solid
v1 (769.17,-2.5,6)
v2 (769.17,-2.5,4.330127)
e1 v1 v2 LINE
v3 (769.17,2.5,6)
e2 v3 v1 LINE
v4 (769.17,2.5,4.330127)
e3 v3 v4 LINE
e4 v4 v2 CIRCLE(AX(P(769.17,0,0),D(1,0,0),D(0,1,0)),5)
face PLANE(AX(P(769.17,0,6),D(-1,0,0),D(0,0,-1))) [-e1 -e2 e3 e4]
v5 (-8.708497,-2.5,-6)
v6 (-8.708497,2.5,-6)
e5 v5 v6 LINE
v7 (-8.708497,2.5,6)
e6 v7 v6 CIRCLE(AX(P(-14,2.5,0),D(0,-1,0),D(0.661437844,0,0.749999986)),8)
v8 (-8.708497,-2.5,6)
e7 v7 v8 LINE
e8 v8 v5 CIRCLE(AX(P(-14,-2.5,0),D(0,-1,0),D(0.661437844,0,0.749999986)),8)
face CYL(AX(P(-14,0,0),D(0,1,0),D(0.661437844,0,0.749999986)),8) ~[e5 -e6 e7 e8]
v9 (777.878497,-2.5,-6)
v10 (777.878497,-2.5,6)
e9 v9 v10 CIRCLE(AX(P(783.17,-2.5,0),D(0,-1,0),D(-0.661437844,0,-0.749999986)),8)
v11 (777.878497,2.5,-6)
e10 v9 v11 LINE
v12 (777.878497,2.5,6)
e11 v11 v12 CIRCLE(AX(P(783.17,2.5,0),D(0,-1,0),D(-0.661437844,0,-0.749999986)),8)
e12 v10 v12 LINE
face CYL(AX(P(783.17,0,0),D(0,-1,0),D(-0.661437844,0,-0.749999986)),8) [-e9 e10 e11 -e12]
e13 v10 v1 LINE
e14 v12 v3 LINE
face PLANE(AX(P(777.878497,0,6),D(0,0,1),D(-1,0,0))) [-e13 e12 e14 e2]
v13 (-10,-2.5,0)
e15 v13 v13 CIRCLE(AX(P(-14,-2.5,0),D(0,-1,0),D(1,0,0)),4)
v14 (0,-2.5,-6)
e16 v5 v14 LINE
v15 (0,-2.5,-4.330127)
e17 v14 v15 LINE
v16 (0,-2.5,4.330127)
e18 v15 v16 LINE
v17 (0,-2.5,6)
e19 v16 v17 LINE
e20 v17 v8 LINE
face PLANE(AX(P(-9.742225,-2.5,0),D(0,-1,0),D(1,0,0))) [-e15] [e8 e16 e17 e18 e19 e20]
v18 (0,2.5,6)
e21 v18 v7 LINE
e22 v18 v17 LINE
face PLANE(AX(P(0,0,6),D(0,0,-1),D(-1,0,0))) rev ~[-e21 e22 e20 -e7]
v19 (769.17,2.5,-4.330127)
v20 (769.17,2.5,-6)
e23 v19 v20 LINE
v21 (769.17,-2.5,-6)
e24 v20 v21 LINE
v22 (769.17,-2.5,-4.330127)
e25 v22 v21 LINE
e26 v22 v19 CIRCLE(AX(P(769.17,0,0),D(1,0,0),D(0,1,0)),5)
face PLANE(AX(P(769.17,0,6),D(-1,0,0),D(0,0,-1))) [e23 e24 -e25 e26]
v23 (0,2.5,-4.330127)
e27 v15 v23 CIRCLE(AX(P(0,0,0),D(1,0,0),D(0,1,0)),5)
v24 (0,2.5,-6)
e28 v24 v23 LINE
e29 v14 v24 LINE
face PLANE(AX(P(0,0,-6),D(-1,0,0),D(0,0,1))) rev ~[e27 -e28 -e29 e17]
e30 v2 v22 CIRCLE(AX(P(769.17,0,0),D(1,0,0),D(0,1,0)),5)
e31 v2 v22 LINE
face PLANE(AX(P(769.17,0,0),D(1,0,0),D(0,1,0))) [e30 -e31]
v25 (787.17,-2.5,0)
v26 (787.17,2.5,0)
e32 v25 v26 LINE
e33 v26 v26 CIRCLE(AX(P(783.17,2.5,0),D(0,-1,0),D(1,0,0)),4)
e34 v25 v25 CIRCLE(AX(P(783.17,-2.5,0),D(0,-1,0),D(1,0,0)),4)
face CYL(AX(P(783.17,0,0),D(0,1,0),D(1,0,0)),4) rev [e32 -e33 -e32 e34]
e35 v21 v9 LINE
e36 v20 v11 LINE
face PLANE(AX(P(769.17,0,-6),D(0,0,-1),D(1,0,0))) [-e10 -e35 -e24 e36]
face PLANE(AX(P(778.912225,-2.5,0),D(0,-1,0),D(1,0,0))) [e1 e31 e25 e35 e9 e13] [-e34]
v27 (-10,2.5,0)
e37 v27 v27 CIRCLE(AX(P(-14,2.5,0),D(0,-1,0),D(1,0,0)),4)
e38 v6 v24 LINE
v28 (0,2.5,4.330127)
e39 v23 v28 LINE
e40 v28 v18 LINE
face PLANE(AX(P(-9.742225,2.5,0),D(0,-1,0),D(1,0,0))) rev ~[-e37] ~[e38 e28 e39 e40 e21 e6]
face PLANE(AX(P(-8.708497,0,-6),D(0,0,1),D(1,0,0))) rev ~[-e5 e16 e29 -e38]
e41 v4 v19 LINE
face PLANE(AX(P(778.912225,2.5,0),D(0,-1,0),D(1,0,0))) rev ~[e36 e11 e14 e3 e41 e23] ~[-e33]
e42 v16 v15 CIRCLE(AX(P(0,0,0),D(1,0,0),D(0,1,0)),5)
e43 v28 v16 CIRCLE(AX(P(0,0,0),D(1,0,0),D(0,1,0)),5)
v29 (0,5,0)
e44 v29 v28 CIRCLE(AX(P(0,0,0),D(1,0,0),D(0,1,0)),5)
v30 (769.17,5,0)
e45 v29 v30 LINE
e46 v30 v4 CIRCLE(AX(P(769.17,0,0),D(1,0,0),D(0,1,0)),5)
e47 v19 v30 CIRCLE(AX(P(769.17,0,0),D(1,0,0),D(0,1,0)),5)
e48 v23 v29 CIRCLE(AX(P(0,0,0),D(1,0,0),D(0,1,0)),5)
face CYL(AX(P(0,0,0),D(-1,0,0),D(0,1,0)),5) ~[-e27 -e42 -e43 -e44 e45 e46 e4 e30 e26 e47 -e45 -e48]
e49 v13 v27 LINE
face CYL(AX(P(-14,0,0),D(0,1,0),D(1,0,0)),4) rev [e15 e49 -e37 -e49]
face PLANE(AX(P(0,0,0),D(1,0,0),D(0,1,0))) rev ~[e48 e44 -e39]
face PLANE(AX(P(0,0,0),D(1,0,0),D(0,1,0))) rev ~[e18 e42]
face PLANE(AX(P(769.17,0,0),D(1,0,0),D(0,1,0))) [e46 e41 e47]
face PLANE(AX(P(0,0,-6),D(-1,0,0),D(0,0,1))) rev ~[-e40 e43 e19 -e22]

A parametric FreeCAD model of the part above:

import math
import FreeCAD as App
import Part
import Sketcher

V = App.Vector

doc = App.newDocument("Part")
body = doc.addObject("PartDesign::Body", "Body")

sketch1 = doc.addObject("Sketcher::SketchObject", "Sketch")
body.addObject(sketch1)
sketch1.AttachmentSupport = (doc.YZ_Plane, [""])
sketch1.MapMode = "FlatFace"
sketch1.addGeometry(Part.Circle(V(0, 0, 0), V(0, 0, 1), 5), False)
sketch1.addConstraint(Sketcher.Constraint("Coincident", 0, 3, -1, 1))
sketch1.addConstraint(Sketcher.Constraint("Diameter", 0, 10.0))
pad1 = doc.addObject("PartDesign::Pad", "Pad")
body.addObject(pad1)
pad1.Profile = sketch1
pad1.Length = 769.17

sketch2 = doc.addObject("Sketcher::SketchObject", "Sketch001")
body.addObject(sketch2)
sketch2.AttachmentSupport = (doc.XZ_Plane, [""])
sketch2.MapMode = "FlatFace"
sketch2.addGeometry(Part.LineSegment(V(0, -6, 0), V(0, 6, 0)), False)
sketch2.addGeometry(Part.LineSegment(V(0, 6, 0), V(-8.7, 6, 0)), False)
sketch2.addGeometry(Part.ArcOfCircle(Part.Circle(V(-14, 0, 0), V(0, 0, 1), 8), math.radians(49), math.radians(311)), False)
sketch2.addGeometry(Part.LineSegment(V(-8.7, -6, 0), V(0, -6, 0)), False)
sketch2.addGeometry(Part.Circle(V(-14, 0, 0), V(0, 0, 1), 4), False)
sketch2.addGeometry(Part.LineSegment(V(777.9, 6, 0), V(769.2, 6, 0)), False)
sketch2.addGeometry(Part.LineSegment(V(769.2, 6, 0), V(769.2, -6, 0)), False)
sketch2.addGeometry(Part.LineSegment(V(769.2, -6, 0), V(777.9, -6, 0)), False)
sketch2.addGeometry(Part.ArcOfCircle(Part.Circle(V(783.2, 0, 0), V(0, 0, 1), 8), math.radians(-131), math.radians(131)), False)
sketch2.addGeometry(Part.Circle(V(783.2, 0, 0), V(0, 0, 1), 4), False)
sketch2.addConstraint(Sketcher.Constraint("Coincident", 0, 2, 1, 1))
sketch2.addConstraint(Sketcher.Constraint("Coincident", 1, 2, 2, 1))
sketch2.addConstraint(Sketcher.Constraint("Coincident", 2, 2, 3, 1))
sketch2.addConstraint(Sketcher.Constraint("Coincident", 3, 2, 0, 1))
sketch2.addConstraint(Sketcher.Constraint("Coincident", 5, 2, 6, 1))
sketch2.addConstraint(Sketcher.Constraint("Coincident", 6, 2, 7, 1))
sketch2.addConstraint(Sketcher.Constraint("Coincident", 7, 2, 8, 1))
sketch2.addConstraint(Sketcher.Constraint("Coincident", 8, 2, 5, 1))
sketch2.addConstraint(Sketcher.Constraint("Vertical", 0))
sketch2.addConstraint(Sketcher.Constraint("Horizontal", 1))
sketch2.addConstraint(Sketcher.Constraint("Horizontal", 3))
sketch2.addConstraint(Sketcher.Constraint("Horizontal", 5))
sketch2.addConstraint(Sketcher.Constraint("Vertical", 6))
sketch2.addConstraint(Sketcher.Constraint("Horizontal", 7))
sketch2.addConstraint(Sketcher.Constraint("Coincident", 4, 3, 2, 3))
sketch2.addConstraint(Sketcher.Constraint("Coincident", 9, 3, 8, 3))
sketch2.addConstraint(Sketcher.Constraint("Equal", 2, 8))
sketch2.addConstraint(Sketcher.Constraint("Equal", 4, 9))
sketch2.addConstraint(Sketcher.Constraint("Symmetric", 0, 2, 3, 2, -1, 1))
sketch2.addConstraint(Sketcher.Constraint("Symmetric", 7, 2, 8, 2, -1))
sketch2.addConstraint(Sketcher.Constraint("PointOnObject", 2, 3, -1))
sketch2.addConstraint(Sketcher.Constraint("Horizontal", 1, 2, 5, 2))
sketch2.addConstraint(Sketcher.Constraint("Equal", 3, 5))
sketch2.addConstraint(Sketcher.Constraint("Diameter", 4, 8.0))
sketch2.addConstraint(Sketcher.Constraint("Radius", 2, 8.0))
sketch2.addConstraint(Sketcher.Constraint("DistanceY", 0, 1, 0, 2, 12.0))
sketch2.addConstraint(Sketcher.Constraint("DistanceX", 2, 3, -1, 1, 14.0))
sketch2.addConstraint(Sketcher.Constraint("DistanceX", -1, 1, 8, 3, 783.17))
pad2 = doc.addObject("PartDesign::Pad", "Pad001")
body.addObject(pad2)
pad2.Profile = sketch2
pad2.Length = 5
pad2.Midplane = True

doc.recompute()
